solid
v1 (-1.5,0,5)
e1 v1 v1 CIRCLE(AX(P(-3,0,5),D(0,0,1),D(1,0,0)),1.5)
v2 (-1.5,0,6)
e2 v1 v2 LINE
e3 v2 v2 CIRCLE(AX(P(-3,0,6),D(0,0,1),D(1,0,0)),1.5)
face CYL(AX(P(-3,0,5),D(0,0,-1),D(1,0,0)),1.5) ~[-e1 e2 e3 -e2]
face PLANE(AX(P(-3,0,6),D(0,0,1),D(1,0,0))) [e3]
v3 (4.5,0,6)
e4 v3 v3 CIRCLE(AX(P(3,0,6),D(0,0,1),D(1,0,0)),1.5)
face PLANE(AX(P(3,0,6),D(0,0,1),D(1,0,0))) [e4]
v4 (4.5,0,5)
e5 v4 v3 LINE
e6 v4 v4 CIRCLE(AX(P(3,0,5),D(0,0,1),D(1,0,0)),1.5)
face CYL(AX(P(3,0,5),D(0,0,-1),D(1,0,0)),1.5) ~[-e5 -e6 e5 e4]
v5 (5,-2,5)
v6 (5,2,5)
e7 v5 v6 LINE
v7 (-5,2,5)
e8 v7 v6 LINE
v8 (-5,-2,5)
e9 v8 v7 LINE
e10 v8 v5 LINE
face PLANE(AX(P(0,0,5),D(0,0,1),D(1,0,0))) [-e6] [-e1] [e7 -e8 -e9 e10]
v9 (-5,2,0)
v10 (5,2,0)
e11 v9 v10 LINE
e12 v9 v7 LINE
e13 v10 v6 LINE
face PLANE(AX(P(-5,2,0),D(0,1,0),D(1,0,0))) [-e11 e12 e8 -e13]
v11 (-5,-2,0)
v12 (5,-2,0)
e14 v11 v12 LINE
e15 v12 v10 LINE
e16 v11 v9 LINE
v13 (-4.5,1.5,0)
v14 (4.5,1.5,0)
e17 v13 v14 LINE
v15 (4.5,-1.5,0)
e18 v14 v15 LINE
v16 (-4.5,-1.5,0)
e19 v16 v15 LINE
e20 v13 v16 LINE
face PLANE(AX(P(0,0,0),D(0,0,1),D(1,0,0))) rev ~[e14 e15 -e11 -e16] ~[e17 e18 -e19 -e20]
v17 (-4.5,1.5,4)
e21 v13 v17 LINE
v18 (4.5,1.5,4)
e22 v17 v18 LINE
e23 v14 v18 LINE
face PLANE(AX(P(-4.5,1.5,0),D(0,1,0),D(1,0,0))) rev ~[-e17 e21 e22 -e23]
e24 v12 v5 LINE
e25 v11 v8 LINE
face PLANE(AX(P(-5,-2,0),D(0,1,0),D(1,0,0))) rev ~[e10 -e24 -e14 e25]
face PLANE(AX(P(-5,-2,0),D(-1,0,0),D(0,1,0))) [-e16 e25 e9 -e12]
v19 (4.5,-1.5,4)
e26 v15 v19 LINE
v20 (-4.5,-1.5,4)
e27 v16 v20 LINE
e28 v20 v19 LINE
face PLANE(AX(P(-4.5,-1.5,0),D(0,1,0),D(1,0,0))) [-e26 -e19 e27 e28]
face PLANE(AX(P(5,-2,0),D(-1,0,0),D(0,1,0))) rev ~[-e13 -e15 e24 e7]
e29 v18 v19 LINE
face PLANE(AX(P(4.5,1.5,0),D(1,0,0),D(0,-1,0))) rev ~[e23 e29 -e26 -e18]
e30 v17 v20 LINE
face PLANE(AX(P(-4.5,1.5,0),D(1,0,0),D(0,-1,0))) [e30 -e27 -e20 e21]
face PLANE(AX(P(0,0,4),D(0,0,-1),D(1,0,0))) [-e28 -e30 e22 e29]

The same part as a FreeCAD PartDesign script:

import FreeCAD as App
import Part
import Sketcher

V = App.Vector
Q = App.Units.Quantity

doc = App.newDocument("Part")
params = doc.addObject("Spreadsheet::Sheet", "Params")
for row, (alias, value) in enumerate([
    ("sketch1_width", "10 mm"),
    ("sketch1_height", "4 mm"),
    ("pad1_length", "5 mm"),
    ("sketch2_diameter", "3 mm"),
    ("pad2_length", "1 mm"),
    ("sketch3_width", "9 mm"),
    ("sketch3_height", "3 mm"),
    ("pocket1_length", "4 mm"),
], start=1):
    params.set(f"A{row}", alias)
    params.set(f"B{row}", "=" + value)
    params.setAlias(f"B{row}", alias)

body = doc.addObject("PartDesign::Body", "Body")

sketch1 = body.newObject("Sketcher::SketchObject", "Sketch")
sketch1.AttachmentSupport = (doc.getObject("XY_Plane"), [""])
sketch1.MapMode = "FlatFace"
sketch1.addGeometry(Part.LineSegment(V(-5, 2, 0), V(-5, -2, 0)), False)
sketch1.addGeometry(Part.LineSegment(V(-5, -2, 0), V(5, -2, 0)), False)
sketch1.addGeometry(Part.LineSegment(V(5, -2, 0), V(5, 2, 0)), False)
sketch1.addGeometry(Part.LineSegment(V(5, 2, 0), V(-5, 2, 0)), False)
sketch1.addConstraint(Sketcher.Constraint("Coincident", 0, 2, 1, 1))
sketch1.addConstraint(Sketcher.Constraint("Coincident", 1, 2, 2, 1))
sketch1.addConstraint(Sketcher.Constraint("Coincident", 2, 2, 3, 1))
sketch1.addConstraint(Sketcher.Constraint("Coincident", 3, 2, 0, 1))
sketch1.addConstraint(Sketcher.Constraint("Vertical", 0))
sketch1.addConstraint(Sketcher.Constraint("Horizontal", 1))
sketch1.addConstraint(Sketcher.Constraint("Vertical", 2))
sketch1.addConstraint(Sketcher.Constraint("Horizontal", 3))
sketch1.addConstraint(Sketcher.Constraint("Symmetric", 0, 2, 2, 2, -1, 1))
sketch1.addConstraint(Sketcher.Constraint("DistanceX", 1, 1, 1, 2, Q("10 mm")))
sketch1.addConstraint(Sketcher.Constraint("DistanceY", 0, 2, 0, 1, Q("4 mm")))
sketch1.setExpression("Constraints[9]", "Params.sketch1_width")
sketch1.setExpression("Constraints[10]", "Params.sketch1_height")
pad1 = body.newObject("PartDesign::Pad", "Pad")
pad1.Profile = sketch1
pad1.setExpression("Length", "Params.pad1_length")

sketch2 = body.newObject("Sketcher::SketchObject", "Sketch001")
sketch2.AttachmentSupport = (doc.getObject("XY_Plane"), [""])
sketch2.MapMode = "FlatFace"
sketch2.AttachmentOffset = App.Placement(V(0, 0, 5), App.Rotation())
sketch2.addGeometry(Part.Circle(V(-3, 0, 0), V(0, 0, 1), 1.5), False)
sketch2.addGeometry(Part.Circle(V(3, 0, 0), V(0, 0, 1), 1.5), False)
sketch2.addConstraint(Sketcher.Constraint("Equal", 0, 1))
sketch2.addConstraint(Sketcher.Constraint("Symmetric", 0, 3, 1, 3, -1, 1))
sketch2.addConstraint(Sketcher.Constraint("PointOnObject", 0, 3, -1))
sketch2.addConstraint(Sketcher.Constraint("Diameter", 0, Q("3 mm")))
sketch2.addConstraint(Sketcher.Constraint("DistanceX", 0, 3, -1, 1, Q("3 mm")))
sketch2.setExpression("Constraints[3]", "Params.sketch2_diameter")
pad2 = body.newObject("PartDesign::Pad", "Pad001")
pad2.Profile = sketch2
pad2.setExpression("Length", "Params.pad2_length")

sketch3 = body.newObject("Sketcher::SketchObject", "Sketch002")
sketch3.AttachmentSupport = (doc.getObject("XY_Plane"), [""])
sketch3.MapMode = "FlatFace"
sketch3.addGeometry(Part.LineSegment(V(-4.5, -1.5, 0), V(-4.5, 1.5, 0)), False)
sketch3.addGeometry(Part.LineSegment(V(-4.5, 1.5, 0), V(4.5, 1.5, 0)), False)
sketch3.addGeometry(Part.LineSegment(V(4.5, 1.5, 0), V(4.5, -1.5, 0)), False)
sketch3.addGeometry(Part.LineSegment(V(4.5, -1.5, 0), V(-4.5, -1.5, 0)), False)
sketch3.addConstraint(Sketcher.Constraint("Coincident", 0, 2, 1, 1))
sketch3.addConstraint(Sketcher.Constraint("Coincident", 1, 2, 2, 1))
sketch3.addConstraint(Sketcher.Constraint("Coincident", 2, 2, 3, 1))
sketch3.addConstraint(Sketcher.Constraint("Coincident", 3, 2, 0, 1))
sketch3.addConstraint(Sketcher.Constraint("Vertical", 0))
sketch3.addConstraint(Sketcher.Constraint("Horizontal", 1))
sketch3.addConstraint(Sketcher.Constraint("Vertical", 2))
sketch3.addConstraint(Sketcher.Constraint("Horizontal", 3))
sketch3.addConstraint(Sketcher.Constraint("Symmetric", 0, 2, 2, 2, -1, 1))
sketch3.addConstraint(Sketcher.Constraint("DistanceX", 1, 1, 1, 2, Q("9 mm")))
sketch3.addConstraint(Sketcher.Constraint("DistanceY", 0, 1, 0, 2, Q("3 mm")))
sketch3.setExpression("Constraints[9]", "Params.sketch3_width")
sketch3.setExpression("Constraints[10]", "Params.sketch3_height")
pocket1 = body.newObject("PartDesign::Pocket", "Pocket")
pocket1.Profile = sketch3
pocket1.setExpression("Length", "Params.pocket1_length")
pocket1.Reversed = True

doc.recompute()
